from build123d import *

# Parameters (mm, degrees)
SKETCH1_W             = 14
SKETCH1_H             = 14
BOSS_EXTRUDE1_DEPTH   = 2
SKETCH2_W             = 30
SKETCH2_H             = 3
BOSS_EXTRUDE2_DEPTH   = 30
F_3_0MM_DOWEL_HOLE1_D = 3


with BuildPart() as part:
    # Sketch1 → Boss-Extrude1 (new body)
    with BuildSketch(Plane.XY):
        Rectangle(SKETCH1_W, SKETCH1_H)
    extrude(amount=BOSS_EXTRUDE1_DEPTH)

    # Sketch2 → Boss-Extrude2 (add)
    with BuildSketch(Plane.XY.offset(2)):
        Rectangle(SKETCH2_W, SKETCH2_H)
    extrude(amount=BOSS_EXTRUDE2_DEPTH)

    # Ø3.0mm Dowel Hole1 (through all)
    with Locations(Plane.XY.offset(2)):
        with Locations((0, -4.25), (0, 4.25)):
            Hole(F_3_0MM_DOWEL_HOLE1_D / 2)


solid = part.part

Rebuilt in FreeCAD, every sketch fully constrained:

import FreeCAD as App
import Part
import Sketcher

V = App.Vector
Q = App.Units.Quantity

doc = App.newDocument("Part")
body = doc.addObject("PartDesign::Body", "Body")

sketch1 = doc.addObject("Sketcher::SketchObject", "Sketch")
body.addObject(sketch1)
sketch1.AttachmentSupport = (doc.XY_Plane, [""])
sketch1.MapMode = "FlatFace"
sketch1.addGeometry([
    Part.LineSegment(V(-7, 7, 0), V(-7, -7, 0)),
    Part.LineSegment(V(-7, -7, 0), V(7, -7, 0)),
    Part.LineSegment(V(7, -7, 0), V(7, 7, 0)),
    Part.LineSegment(V(7, 7, 0), V(-7, 7, 0)),
], False)
sketch1.addConstraint([
    Sketcher.Constraint("Coincident", 0, 2, 1, 1),
    Sketcher.Constraint("Coincident", 1, 2, 2, 1),
    Sketcher.Constraint("Coincident", 2, 2, 3, 1),
    Sketcher.Constraint("Coincident", 3, 2, 0, 1),
    Sketcher.Constraint("Vertical", 0),
    Sketcher.Constraint("Horizontal", 1),
    Sketcher.Constraint("Vertical", 2),
    Sketcher.Constraint("Horizontal", 3),
    Sketcher.Constraint("Symmetric", 0, 2, 2, 2, -1, 1),
    Sketcher.Constraint("Equal", 3, 0),
    Sketcher.Constraint("DistanceX", 1, 1, 1, 2, Q("14 mm")),
])
pad1 = doc.addObject("PartDesign::Pad", "Pad")
body.addObject(pad1)
pad1.Profile = sketch1
pad1.Length = 2

sketch2 = doc.addObject("Sketcher::SketchObject", "Sketch001")
body.addObject(sketch2)
sketch2.AttachmentSupport = (doc.XY_Plane, [""])
sketch2.MapMode = "FlatFace"
sketch2.AttachmentOffset = App.Placement(V(0, 0, 2), App.Rotation())
sketch2.addGeometry([
    Part.LineSegment(V(-15, 1.5, 0), V(-15, -1.5, 0)),
    Part.LineSegment(V(-15, -1.5, 0), V(15, -1.5, 0)),
    Part.LineSegment(V(15, -1.5, 0), V(15, 1.5, 0)),
    Part.LineSegment(V(15, 1.5, 0), V(-15, 1.5, 0)),
], False)
sketch2.addConstraint([
    Sketcher.Constraint("Coincident", 0, 2, 1, 1),
    Sketcher.Constraint("Coincident", 1, 2, 2, 1),
    Sketcher.Constraint("Coincident", 2, 2, 3, 1),
    Sketcher.Constraint("Coincident", 3, 2, 0, 1),
    Sketcher.Constraint("Vertical", 0),
    Sketcher.Constraint("Horizontal", 1),
    Sketcher.Constraint("Vertical", 2),
    Sketcher.Constraint("Horizontal", 3),
    Sketcher.Constraint("Symmetric", 0, 2, 2, 2, -1, 1),
    Sketcher.Constraint("DistanceX", 1, 1, 1, 2, Q("30 mm")),
    Sketcher.Constraint("DistanceY", 0, 2, 0, 1, Q("3 mm")),
])
pad2 = doc.addObject("PartDesign::Pad", "Pad001")
body.addObject(pad2)
pad2.Profile = sketch2
pad2.Length = 30

sketch3 = doc.addObject("Sketcher::SketchObject", "Sketch002")
body.addObject(sketch3)
sketch3.AttachmentSupport = (doc.XY_Plane, [""])
sketch3.MapMode = "FlatFace"
sketch3.AttachmentOffset = App.Placement(V(0, 0, 2), App.Rotation())
sketch3.addGeometry([
    Part.Circle(V(0, -4.2, 0), V(0, 0, 1), 1.5),
    Part.Circle(V(0, 4.2, 0), V(0, 0, 1), 1.5),
], False)
sketch3.addConstraint([
    Sketcher.Constraint("Equal", 0, 1),
    Sketcher.Constraint("Symmetric", 0, 3, 1, 3, -1, 1),
    Sketcher.Constraint("PointOnObject", 0, 3, -2),
    Sketcher.Constraint("Diameter", 0, Q("3 mm")),
    Sketcher.Constraint("DistanceY", 0, 3, 1, 3, Q("8.5 mm")),
])
doc.recompute()
hole = doc.addObject("PartDesign::Hole", "Hole")
body.addObject(hole)
hole.Profile = sketch3
hole.ThreadType = "None"
hole.Diameter = 3
hole.DepthType = "ThroughAll"

doc.recompute()
